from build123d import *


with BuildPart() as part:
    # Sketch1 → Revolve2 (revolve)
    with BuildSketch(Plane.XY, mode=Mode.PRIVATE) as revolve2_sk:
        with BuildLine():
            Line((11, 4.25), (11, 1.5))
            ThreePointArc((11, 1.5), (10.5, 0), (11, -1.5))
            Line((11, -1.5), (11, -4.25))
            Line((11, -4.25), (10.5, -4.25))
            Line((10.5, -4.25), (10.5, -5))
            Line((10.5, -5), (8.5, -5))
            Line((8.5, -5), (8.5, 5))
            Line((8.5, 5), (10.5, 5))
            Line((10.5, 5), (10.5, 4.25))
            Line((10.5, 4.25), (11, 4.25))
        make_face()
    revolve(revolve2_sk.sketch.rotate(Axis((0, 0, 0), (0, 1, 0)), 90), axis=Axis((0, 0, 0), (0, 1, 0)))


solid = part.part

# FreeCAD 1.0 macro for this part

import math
import FreeCAD as App
import Part
import Sketcher
from FreeCAD import Vector

doc = App.newDocument("Part")
body = doc.addObject("PartDesign::Body", "Body")

# Sketch on XY plane
sketch1 = body.newObject("Sketcher::SketchObject", "Sketch")
sketch1.AttachmentSupport = (doc.getObject("XY_Plane"), [""])
sketch1.MapMode = "FlatFace"
sketch1.addGeometry([
    Part.LineSegment(Vector(11, 1.5, 0), Vector(11, 4.2, 0)),  # 0
    Part.LineSegment(Vector(11, 4.2, 0), Vector(10.5, 4.2, 0)),  # 1
    Part.LineSegment(Vector(10.5, 4.2, 0), Vector(10.5, 5, 0)),  # 2
    Part.LineSegment(Vector(10.5, 5, 0), Vector(8.5, 5, 0)),  # 3
    Part.LineSegment(Vector(8.5, 5, 0), Vector(8.5, -5, 0)),  # 4
    Part.LineSegment(Vector(8.5, -5, 0), Vector(10.5, -5, 0)),  # 5
    Part.LineSegment(Vector(10.5, -5, 0), Vector(10.5, -4.2, 0)),  # 6
    Part.LineSegment(Vector(10.5, -4.2, 0), Vector(11, -4.2, 0)),  # 7
    Part.LineSegment(Vector(11, -4.2, 0), Vector(11, -1.5, 0)),  # 8
    Part.ArcOfCircle(Part.Circle(Vector(13, 0, 0), Vector(0, 0, 1), 2.5), math.radians(143), math.radians(217)),  # 9
], False)
sketch1.addConstraint([
    Sketcher.Constraint("Coincident", 0, 2, 1, 1),
    Sketcher.Constraint("Coincident", 1, 2, 2, 1),
    Sketcher.Constraint("Coincident", 2, 2, 3, 1),
    Sketcher.Constraint("Coincident", 3, 2, 4, 1),
    Sketcher.Constraint("Coincident", 4, 2, 5, 1),
    Sketcher.Constraint("Coincident", 5, 2, 6, 1),
    Sketcher.Constraint("Coincident", 6, 2, 7, 1),
    Sketcher.Constraint("Coincident", 7, 2, 8, 1),
    Sketcher.Constraint("Coincident", 8, 2, 9, 2),
    Sketcher.Constraint("Coincident", 9, 1, 0, 1),
    Sketcher.Constraint("Vertical", 0),
    Sketcher.Constraint("Horizontal", 1),
    Sketcher.Constraint("Vertical", 2),
    Sketcher.Constraint("Horizontal", 3),
    Sketcher.Constraint("Vertical", 4),
    Sketcher.Constraint("Horizontal", 5),
    Sketcher.Constraint("Vertical", 6),
    Sketcher.Constraint("Horizontal", 7),
    Sketcher.Constraint("Vertical", 8),
    Sketcher.Constraint("Symmetric", 2, 2, 5, 2, -1),
    Sketcher.Constraint("Symmetric", 0, 2, 7, 2, -1),
    Sketcher.Constraint("PointOnObject", 9, 3, -1),
    Sketcher.Constraint("Radius", 9, 2.5),
    Sketcher.Constraint("DistanceX", 3, 2, 3, 1, 2.0),
    Sketcher.Constraint("DistanceY", 4, 2, 4, 1, 10.0),
    Sketcher.Constraint("DistanceX", 1, 2, 1, 1, 0.5),
    Sketcher.Constraint("DistanceX", -1, 1, 9, 3, 13.0),
    Sketcher.Constraint("DistanceX", -1, 1, 0, 2, 11.0),
    Sketcher.Constraint("DistanceY", 0, 1, 0, 2, 2.75),
])
revolution = body.newObject("PartDesign::Revolution", "Revolution")
revolution.Profile = sketch1
revolution.ReferenceAxis = (sketch1, ["V_Axis"])
revolution.Angle = 360

doc.recompute()
